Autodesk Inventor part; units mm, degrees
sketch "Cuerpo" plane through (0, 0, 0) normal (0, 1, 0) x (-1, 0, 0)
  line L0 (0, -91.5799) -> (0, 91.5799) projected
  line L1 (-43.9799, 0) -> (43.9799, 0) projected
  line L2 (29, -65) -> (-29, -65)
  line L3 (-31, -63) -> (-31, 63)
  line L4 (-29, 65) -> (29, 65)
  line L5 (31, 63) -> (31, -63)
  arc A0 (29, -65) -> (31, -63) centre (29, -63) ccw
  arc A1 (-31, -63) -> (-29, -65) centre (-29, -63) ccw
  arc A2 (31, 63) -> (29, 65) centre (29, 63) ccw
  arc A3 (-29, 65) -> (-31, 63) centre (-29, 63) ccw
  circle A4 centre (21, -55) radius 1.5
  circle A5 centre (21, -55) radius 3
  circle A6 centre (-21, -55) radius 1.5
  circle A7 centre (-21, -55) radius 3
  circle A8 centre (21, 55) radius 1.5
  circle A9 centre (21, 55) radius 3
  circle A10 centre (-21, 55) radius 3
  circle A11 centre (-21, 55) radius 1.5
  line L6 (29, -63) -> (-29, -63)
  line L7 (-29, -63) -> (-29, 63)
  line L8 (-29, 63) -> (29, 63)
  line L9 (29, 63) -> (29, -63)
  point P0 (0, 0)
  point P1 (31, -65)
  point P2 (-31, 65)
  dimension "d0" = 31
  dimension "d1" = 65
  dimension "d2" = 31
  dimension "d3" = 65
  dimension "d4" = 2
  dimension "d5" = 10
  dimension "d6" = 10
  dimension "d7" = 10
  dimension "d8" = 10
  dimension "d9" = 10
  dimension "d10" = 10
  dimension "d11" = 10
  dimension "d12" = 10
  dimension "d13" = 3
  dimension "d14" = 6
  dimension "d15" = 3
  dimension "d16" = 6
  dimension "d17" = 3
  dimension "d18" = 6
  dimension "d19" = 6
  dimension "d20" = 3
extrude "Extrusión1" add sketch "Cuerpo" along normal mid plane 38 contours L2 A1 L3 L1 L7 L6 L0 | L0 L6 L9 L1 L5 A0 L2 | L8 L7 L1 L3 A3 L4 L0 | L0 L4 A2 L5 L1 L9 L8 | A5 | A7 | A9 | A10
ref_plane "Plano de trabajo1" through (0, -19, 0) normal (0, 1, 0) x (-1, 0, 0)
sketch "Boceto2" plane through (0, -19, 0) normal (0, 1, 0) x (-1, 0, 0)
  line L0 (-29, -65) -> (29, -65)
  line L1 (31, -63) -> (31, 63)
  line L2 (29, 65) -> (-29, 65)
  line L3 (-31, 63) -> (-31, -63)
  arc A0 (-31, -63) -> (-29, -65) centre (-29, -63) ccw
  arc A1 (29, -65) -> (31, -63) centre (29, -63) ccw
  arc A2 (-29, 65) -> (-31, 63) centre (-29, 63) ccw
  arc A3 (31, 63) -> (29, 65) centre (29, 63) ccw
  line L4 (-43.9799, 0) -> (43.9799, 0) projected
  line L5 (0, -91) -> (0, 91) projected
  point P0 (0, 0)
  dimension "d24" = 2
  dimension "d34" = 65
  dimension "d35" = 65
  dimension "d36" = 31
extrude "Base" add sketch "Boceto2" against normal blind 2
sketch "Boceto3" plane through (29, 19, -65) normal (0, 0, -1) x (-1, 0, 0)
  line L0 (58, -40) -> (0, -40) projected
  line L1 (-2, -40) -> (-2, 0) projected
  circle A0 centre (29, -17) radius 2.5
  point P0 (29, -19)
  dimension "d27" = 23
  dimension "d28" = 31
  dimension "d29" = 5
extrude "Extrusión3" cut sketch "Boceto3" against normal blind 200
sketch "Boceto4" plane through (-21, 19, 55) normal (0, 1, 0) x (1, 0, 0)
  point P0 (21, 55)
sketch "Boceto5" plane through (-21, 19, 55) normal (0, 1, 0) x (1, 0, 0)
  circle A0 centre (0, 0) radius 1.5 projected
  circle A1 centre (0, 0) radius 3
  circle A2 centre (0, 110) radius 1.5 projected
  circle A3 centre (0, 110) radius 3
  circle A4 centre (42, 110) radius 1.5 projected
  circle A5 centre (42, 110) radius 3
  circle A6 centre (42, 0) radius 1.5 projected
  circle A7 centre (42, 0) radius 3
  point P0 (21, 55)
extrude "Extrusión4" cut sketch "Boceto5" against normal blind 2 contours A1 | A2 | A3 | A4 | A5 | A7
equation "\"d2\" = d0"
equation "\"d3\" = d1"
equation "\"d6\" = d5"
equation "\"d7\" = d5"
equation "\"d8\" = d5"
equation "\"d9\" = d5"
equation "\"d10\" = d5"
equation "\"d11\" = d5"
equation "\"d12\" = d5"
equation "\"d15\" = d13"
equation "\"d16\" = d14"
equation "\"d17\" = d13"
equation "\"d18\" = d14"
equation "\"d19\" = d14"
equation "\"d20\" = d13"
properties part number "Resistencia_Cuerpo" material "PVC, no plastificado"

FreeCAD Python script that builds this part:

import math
import FreeCAD as App
import Part
import Sketcher

V = App.Vector
Q = App.Units.Quantity

doc = App.newDocument("Part")
body = doc.addObject("PartDesign::Body", "Body")
body.AllowCompound = True

# Sketch on XZ plane
sketch1 = doc.addObject("Sketcher::SketchObject", "Sketch")
body.addObject(sketch1)
sketch1.AttachmentSupport = (doc.XZ_Plane, [""])
sketch1.MapMode = "FlatFace"
sketch1.addGeometry(Part.LineSegment(V(29, -65, 0), V(-29, -65, 0)), False)
sketch1.addGeometry(Part.ArcOfCircle(Part.Circle(V(-29, -63, 0), V(0, 0, 1), 2), math.radians(180), math.radians(270)), False)
sketch1.addGeometry(Part.LineSegment(V(-31, -63, 0), V(-31, 63, 0)), False)
sketch1.addGeometry(Part.ArcOfCircle(Part.Circle(V(-29, 63, 0), V(0, 0, 1), 2), math.radians(90), math.radians(180)), False)
sketch1.addGeometry(Part.LineSegment(V(-29, 65, 0), V(29, 65, 0)), False)
sketch1.addGeometry(Part.ArcOfCircle(Part.Circle(V(29, 63, 0), V(0, 0, 1), 2), math.radians(0), math.radians(90)), False)
sketch1.addGeometry(Part.LineSegment(V(31, 63, 0), V(31, -63, 0)), False)
sketch1.addGeometry(Part.ArcOfCircle(Part.Circle(V(29, -63, 0), V(0, 0, 1), 2), math.radians(-90), math.radians(0)), False)
sketch1.addGeometry(Part.LineSegment(V(29, -63, 0), V(29, 63, 0)), False)
sketch1.addGeometry(Part.LineSegment(V(29, 63, 0), V(-29, 63, 0)), False)
sketch1.addGeometry(Part.LineSegment(V(-29, 63, 0), V(-29, -63, 0)), False)
sketch1.addGeometry(Part.LineSegment(V(-29, -63, 0), V(29, -63, 0)), False)
sketch1.addGeometry(Part.Circle(V(-21, -55, 0), V(0, 0, 1), 3), False)
sketch1.addGeometry(Part.Circle(V(-21, -55, 0), V(0, 0, 1), 1.5), False)
sketch1.addGeometry(Part.Circle(V(21, -55, 0), V(0, 0, 1), 3), False)
sketch1.addGeometry(Part.Circle(V(21, -55, 0), V(0, 0, 1), 1.5), False)
sketch1.addGeometry(Part.Circle(V(-21, 55, 0), V(0, 0, 1), 3), False)
sketch1.addGeometry(Part.Circle(V(-21, 55, 0), V(0, 0, 1), 1.5), False)
sketch1.addGeometry(Part.Circle(V(21, 55, 0), V(0, 0, 1), 3), False)
sketch1.addGeometry(Part.Circle(V(21, 55, 0), V(0, 0, 1), 1.5), False)
sketch1.addConstraint(Sketcher.Constraint("Tangent", 0, 2, 1, 2))
sketch1.addConstraint(Sketcher.Constraint("Tangent", 1, 1, 2, 1))
sketch1.addConstraint(Sketcher.Constraint("Tangent", 2, 2, 3, 2))
sketch1.addConstraint(Sketcher.Constraint("Tangent", 3, 1, 4, 1))
sketch1.addConstraint(Sketcher.Constraint("Tangent", 4, 2, 5, 2))
sketch1.addConstraint(Sketcher.Constraint("Tangent", 5, 1, 6, 1))
sketch1.addConstraint(Sketcher.Constraint("Tangent", 6, 2, 7, 2))
sketch1.addConstraint(Sketcher.Constraint("Tangent", 7, 1, 0, 1))
sketch1.addConstraint(Sketcher.Constraint("Coincident", 8, 2, 9, 1))
sketch1.addConstraint(Sketcher.Constraint("Coincident", 9, 2, 10, 1))
sketch1.addConstraint(Sketcher.Constraint("Coincident", 10, 2, 11, 1))
sketch1.addConstraint(Sketcher.Constraint("Coincident", 11, 2, 8, 1))
sketch1.addConstraint(Sketcher.Constraint("Horizontal", 0))
sketch1.addConstraint(Sketcher.Constraint("Vertical", 2))
sketch1.addConstraint(Sketcher.Constraint("Horizontal", 4))
sketch1.addConstraint(Sketcher.Constraint("Vertical", 6))
sketch1.addConstraint(Sketcher.Constraint("Vertical", 8))
sketch1.addConstraint(Sketcher.Constraint("Horizontal", 9))
sketch1.addConstraint(Sketcher.Constraint("Vertical", 10))
sketch1.addConstraint(Sketcher.Constraint("Horizontal", 11))
sketch1.addConstraint(Sketcher.Constraint("Coincident", 13, 3, 12, 3))
sketch1.addConstraint(Sketcher.Constraint("Coincident", 15, 3, 14, 3))
sketch1.addConstraint(Sketcher.Constraint("Coincident", 17, 3, 16, 3))
sketch1.addConstraint(Sketcher.Constraint("Coincident", 19, 3, 18, 3))
sketch1.addConstraint(Sketcher.Constraint("Coincident", 8, 2, 5, 3))
sketch1.addConstraint(Sketcher.Constraint("Coincident", 9, 2, 3, 3))
sketch1.addConstraint(Sketcher.Constraint("Coincident", 10, 2, 1, 3))
sketch1.addConstraint(Sketcher.Constraint("Equal", 5, 7))
sketch1.addConstraint(Sketcher.Constraint("Equal", 12, 14))
sketch1.addConstraint(Sketcher.Constraint("Equal", 13, 15))
sketch1.addConstraint(Sketcher.Constraint("Equal", 14, 16))
sketch1.addConstraint(Sketcher.Constraint("Equal", 15, 17))
sketch1.addConstraint(Sketcher.Constraint("Equal", 16, 18))
sketch1.addConstraint(Sketcher.Constraint("Equal", 17, 19))
sketch1.addConstraint(Sketcher.Constraint("Symmetric", 1, 3, 5, 3, -1, 1))
sketch1.addConstraint(Sketcher.Constraint("Symmetric", 14, 3, 16, 3, -1, 1))
sketch1.addConstraint(Sketcher.Constraint("Symmetric", 12, 3, 18, 3, -1, 1))
sketch1.addConstraint(Sketcher.Constraint("Symmetric", 12, 3, 14, 3, -2))
sketch1.addConstraint(Sketcher.Constraint("Diameter", 12, Q("6 mm")))
sketch1.addConstraint(Sketcher.Constraint("Diameter", 13, Q("3 mm")))
sketch1.addConstraint(Sketcher.Constraint("Radius", 1, Q("2 mm")))
sketch1.addConstraint(Sketcher.Constraint("DistanceY", 0, 2, -1, 1, Q("65 mm")))
sketch1.addConstraint(Sketcher.Constraint("DistanceX", 1, 1, -1, 1, Q("31 mm")))
sketch1.addConstraint(Sketcher.Constraint("DistanceY", 0, 2, 12, 3, Q("10 mm")))
sketch1.addConstraint(Sketcher.Constraint("DistanceX", 1, 1, 12, 3, Q("10 mm")))
pad1 = doc.addObject("PartDesign::Pad", "Pad")
body.addObject(pad1)
pad1.Profile = sketch1
pad1.Length = 38
pad1.Midplane = True

# Sketch on XZ plane
sketch2 = doc.addObject("Sketcher::SketchObject", "Sketch001")
body.addObject(sketch2)
sketch2.AttachmentSupport = (doc.XZ_Plane, [""])
sketch2.MapMode = "FlatFace"
sketch2.AttachmentOffset = App.Placement(V(0, 0, 19), App.Rotation())
sketch2.addGeometry(Part.ArcOfCircle(Part.Circle(V(29, -63, 0), V(0, 0, 1), 2), math.radians(-90), math.radians(0)), False)
sketch2.addGeometry(Part.LineSegment(V(29, -65, 0), V(-29, -65, 0)), False)
sketch2.addGeometry(Part.ArcOfCircle(Part.Circle(V(-29, -63, 0), V(0, 0, 1), 2), math.radians(180), math.radians(270)), False)
sketch2.addGeometry(Part.LineSegment(V(-31, -63, 0), V(-31, 63, 0)), False)
sketch2.addGeometry(Part.ArcOfCircle(Part.Circle(V(-29, 63, 0), V(0, 0, 1), 2), math.radians(90), math.radians(180)), False)
sketch2.addGeometry(Part.LineSegment(V(-29, 65, 0), V(29, 65, 0)), False)
sketch2.addGeometry(Part.ArcOfCircle(Part.Circle(V(29, 63, 0), V(0, 0, 1), 2), math.radians(0), math.radians(90)), False)
sketch2.addGeometry(Part.LineSegment(V(31, 63, 0), V(31, -63, 0)), False)
sketch2.addConstraint(Sketcher.Constraint("Tangent", 0, 1, 1, 1))
sketch2.addConstraint(Sketcher.Constraint("Tangent", 1, 2, 2, 2))
sketch2.addConstraint(Sketcher.Constraint("Tangent", 2, 1, 3, 1))
sketch2.addConstraint(Sketcher.Constraint("Tangent", 3, 2, 4, 2))
sketch2.addConstraint(Sketcher.Constraint("Tangent", 4, 1, 5, 1))
sketch2.addConstraint(Sketcher.Constraint("Tangent", 5, 2, 6, 2))
sketch2.addConstraint(Sketcher.Constraint("Tangent", 6, 1, 7, 1))
sketch2.addConstraint(Sketcher.Constraint("Tangent", 7, 2, 0, 2))
sketch2.addConstraint(Sketcher.Constraint("Horizontal", 1))
sketch2.addConstraint(Sketcher.Constraint("Vertical", 3))
sketch2.addConstraint(Sketcher.Constraint("Horizontal", 5))
sketch2.addConstraint(Sketcher.Constraint("Vertical", 7))
sketch2.addConstraint(Sketcher.Constraint("Equal", 0, 2))
sketch2.addConstraint(Sketcher.Constraint("Equal", 2, 4))
sketch2.addConstraint(Sketcher.Constraint("Equal", 4, 6))
sketch2.addConstraint(Sketcher.Constraint("Symmetric", 0, 3, 4, 3, -1, 1))
sketch2.addConstraint(Sketcher.Constraint("Radius", 0, Q("2 mm")))
sketch2.addConstraint(Sketcher.Constraint("DistanceY", 0, 1, -1, 1, Q("65 mm")))
sketch2.addConstraint(Sketcher.Constraint("DistanceX", 2, 1, -1, 1, Q("31 mm")))
pad2 = doc.addObject("PartDesign::Pad", "Pad001")
body.addObject(pad2)
pad2.Profile = sketch2
pad2.Length = 2

# Sketch on XY plane
sketch3 = doc.addObject("Sketcher::SketchObject", "Sketch002")
body.addObject(sketch3)
sketch3.AttachmentSupport = (doc.XY_Plane, [""])
sketch3.MapMode = "FlatFace"
sketch3.AttachmentOffset = App.Placement(V(0, 0, -65), App.Rotation())
sketch3.addGeometry(Part.Circle(V(0, 2, 0), V(0, 0, 1), 2.5), False)
sketch3.addConstraint(Sketcher.Constraint("PointOnObject", 0, 3, -2))
sketch3.addConstraint(Sketcher.Constraint("Diameter", 0, Q("5 mm")))
sketch3.addConstraint(Sketcher.Constraint("DistanceY", -1, 1, 0, 3, Q("2 mm")))
pocket1 = doc.addObject("PartDesign::Pocket", "Pocket")
body.addObject(pocket1)
pocket1.Profile = sketch3
pocket1.Length = 200
pocket1.Reversed = True

# Sketch on XZ plane
sketch4 = doc.addObject("Sketcher::SketchObject", "Sketch003")
body.addObject(sketch4)
sketch4.AttachmentSupport = (doc.XZ_Plane, [""])
sketch4.MapMode = "FlatFace"
sketch4.AttachmentOffset = App.Placement(V(0, 0, -19), App.Rotation())
sketch4.addGeometry(Part.Circle(V(-21, 55, 0), V(0, 0, 1), 3), False)
sketch4.addGeometry(Part.Circle(V(-21, 55, 0), V(0, 0, 1), 1.5), False)
sketch4.addGeometry(Part.Circle(V(-21, -55, 0), V(0, 0, 1), 3), False)
sketch4.addGeometry(Part.Circle(V(21, -55, 0), V(0, 0, 1), 3), False)
sketch4.addGeometry(Part.Circle(V(21, 55, 0), V(0, 0, 1), 3), False)
sketch4.addGeometry(Part.Circle(V(21, 55, 0), V(0, 0, 1), 1.5), False)
sketch4.addConstraint(Sketcher.Constraint("Coincident", 1, 3, 0, 3))
sketch4.addConstraint(Sketcher.Constraint("Coincident", 5, 3, 4, 3))
sketch4.addConstraint(Sketcher.Constraint("Equal", 0, 2))
sketch4.addConstraint(Sketcher.Constraint("Equal", 2, 3))
sketch4.addConstraint(Sketcher.Constraint("Equal", 3, 4))
sketch4.addConstraint(Sketcher.Constraint("Equal", 1, 5))
sketch4.addConstraint(Sketcher.Constraint("Symmetric", 0, 3, 3, 3, -1, 1))
sketch4.addConstraint(Sketcher.Constraint("Symmetric", 2, 3, 4, 3, -1, 1))
sketch4.addConstraint(Sketcher.Constraint("Symmetric", 2, 3, 3, 3, -2))
sketch4.addConstraint(Sketcher.Constraint("Diameter", 0, Q("6 mm")))
sketch4.addConstraint(Sketcher.Constraint("Diameter", 1, Q("3 mm")))
sketch4.addConstraint(Sketcher.Constraint("DistanceX", 0, 3, -1, 1, Q("21 mm")))
sketch4.addConstraint(Sketcher.Constraint("DistanceY", -1, 1, 0, 3, Q("55 mm")))
pocket2 = doc.addObject("PartDesign::Pocket", "Pocket001")
body.addObject(pocket2)
pocket2.Profile = sketch4
pocket2.Length = 2
pocket2.Reversed = True

doc.recompute()
